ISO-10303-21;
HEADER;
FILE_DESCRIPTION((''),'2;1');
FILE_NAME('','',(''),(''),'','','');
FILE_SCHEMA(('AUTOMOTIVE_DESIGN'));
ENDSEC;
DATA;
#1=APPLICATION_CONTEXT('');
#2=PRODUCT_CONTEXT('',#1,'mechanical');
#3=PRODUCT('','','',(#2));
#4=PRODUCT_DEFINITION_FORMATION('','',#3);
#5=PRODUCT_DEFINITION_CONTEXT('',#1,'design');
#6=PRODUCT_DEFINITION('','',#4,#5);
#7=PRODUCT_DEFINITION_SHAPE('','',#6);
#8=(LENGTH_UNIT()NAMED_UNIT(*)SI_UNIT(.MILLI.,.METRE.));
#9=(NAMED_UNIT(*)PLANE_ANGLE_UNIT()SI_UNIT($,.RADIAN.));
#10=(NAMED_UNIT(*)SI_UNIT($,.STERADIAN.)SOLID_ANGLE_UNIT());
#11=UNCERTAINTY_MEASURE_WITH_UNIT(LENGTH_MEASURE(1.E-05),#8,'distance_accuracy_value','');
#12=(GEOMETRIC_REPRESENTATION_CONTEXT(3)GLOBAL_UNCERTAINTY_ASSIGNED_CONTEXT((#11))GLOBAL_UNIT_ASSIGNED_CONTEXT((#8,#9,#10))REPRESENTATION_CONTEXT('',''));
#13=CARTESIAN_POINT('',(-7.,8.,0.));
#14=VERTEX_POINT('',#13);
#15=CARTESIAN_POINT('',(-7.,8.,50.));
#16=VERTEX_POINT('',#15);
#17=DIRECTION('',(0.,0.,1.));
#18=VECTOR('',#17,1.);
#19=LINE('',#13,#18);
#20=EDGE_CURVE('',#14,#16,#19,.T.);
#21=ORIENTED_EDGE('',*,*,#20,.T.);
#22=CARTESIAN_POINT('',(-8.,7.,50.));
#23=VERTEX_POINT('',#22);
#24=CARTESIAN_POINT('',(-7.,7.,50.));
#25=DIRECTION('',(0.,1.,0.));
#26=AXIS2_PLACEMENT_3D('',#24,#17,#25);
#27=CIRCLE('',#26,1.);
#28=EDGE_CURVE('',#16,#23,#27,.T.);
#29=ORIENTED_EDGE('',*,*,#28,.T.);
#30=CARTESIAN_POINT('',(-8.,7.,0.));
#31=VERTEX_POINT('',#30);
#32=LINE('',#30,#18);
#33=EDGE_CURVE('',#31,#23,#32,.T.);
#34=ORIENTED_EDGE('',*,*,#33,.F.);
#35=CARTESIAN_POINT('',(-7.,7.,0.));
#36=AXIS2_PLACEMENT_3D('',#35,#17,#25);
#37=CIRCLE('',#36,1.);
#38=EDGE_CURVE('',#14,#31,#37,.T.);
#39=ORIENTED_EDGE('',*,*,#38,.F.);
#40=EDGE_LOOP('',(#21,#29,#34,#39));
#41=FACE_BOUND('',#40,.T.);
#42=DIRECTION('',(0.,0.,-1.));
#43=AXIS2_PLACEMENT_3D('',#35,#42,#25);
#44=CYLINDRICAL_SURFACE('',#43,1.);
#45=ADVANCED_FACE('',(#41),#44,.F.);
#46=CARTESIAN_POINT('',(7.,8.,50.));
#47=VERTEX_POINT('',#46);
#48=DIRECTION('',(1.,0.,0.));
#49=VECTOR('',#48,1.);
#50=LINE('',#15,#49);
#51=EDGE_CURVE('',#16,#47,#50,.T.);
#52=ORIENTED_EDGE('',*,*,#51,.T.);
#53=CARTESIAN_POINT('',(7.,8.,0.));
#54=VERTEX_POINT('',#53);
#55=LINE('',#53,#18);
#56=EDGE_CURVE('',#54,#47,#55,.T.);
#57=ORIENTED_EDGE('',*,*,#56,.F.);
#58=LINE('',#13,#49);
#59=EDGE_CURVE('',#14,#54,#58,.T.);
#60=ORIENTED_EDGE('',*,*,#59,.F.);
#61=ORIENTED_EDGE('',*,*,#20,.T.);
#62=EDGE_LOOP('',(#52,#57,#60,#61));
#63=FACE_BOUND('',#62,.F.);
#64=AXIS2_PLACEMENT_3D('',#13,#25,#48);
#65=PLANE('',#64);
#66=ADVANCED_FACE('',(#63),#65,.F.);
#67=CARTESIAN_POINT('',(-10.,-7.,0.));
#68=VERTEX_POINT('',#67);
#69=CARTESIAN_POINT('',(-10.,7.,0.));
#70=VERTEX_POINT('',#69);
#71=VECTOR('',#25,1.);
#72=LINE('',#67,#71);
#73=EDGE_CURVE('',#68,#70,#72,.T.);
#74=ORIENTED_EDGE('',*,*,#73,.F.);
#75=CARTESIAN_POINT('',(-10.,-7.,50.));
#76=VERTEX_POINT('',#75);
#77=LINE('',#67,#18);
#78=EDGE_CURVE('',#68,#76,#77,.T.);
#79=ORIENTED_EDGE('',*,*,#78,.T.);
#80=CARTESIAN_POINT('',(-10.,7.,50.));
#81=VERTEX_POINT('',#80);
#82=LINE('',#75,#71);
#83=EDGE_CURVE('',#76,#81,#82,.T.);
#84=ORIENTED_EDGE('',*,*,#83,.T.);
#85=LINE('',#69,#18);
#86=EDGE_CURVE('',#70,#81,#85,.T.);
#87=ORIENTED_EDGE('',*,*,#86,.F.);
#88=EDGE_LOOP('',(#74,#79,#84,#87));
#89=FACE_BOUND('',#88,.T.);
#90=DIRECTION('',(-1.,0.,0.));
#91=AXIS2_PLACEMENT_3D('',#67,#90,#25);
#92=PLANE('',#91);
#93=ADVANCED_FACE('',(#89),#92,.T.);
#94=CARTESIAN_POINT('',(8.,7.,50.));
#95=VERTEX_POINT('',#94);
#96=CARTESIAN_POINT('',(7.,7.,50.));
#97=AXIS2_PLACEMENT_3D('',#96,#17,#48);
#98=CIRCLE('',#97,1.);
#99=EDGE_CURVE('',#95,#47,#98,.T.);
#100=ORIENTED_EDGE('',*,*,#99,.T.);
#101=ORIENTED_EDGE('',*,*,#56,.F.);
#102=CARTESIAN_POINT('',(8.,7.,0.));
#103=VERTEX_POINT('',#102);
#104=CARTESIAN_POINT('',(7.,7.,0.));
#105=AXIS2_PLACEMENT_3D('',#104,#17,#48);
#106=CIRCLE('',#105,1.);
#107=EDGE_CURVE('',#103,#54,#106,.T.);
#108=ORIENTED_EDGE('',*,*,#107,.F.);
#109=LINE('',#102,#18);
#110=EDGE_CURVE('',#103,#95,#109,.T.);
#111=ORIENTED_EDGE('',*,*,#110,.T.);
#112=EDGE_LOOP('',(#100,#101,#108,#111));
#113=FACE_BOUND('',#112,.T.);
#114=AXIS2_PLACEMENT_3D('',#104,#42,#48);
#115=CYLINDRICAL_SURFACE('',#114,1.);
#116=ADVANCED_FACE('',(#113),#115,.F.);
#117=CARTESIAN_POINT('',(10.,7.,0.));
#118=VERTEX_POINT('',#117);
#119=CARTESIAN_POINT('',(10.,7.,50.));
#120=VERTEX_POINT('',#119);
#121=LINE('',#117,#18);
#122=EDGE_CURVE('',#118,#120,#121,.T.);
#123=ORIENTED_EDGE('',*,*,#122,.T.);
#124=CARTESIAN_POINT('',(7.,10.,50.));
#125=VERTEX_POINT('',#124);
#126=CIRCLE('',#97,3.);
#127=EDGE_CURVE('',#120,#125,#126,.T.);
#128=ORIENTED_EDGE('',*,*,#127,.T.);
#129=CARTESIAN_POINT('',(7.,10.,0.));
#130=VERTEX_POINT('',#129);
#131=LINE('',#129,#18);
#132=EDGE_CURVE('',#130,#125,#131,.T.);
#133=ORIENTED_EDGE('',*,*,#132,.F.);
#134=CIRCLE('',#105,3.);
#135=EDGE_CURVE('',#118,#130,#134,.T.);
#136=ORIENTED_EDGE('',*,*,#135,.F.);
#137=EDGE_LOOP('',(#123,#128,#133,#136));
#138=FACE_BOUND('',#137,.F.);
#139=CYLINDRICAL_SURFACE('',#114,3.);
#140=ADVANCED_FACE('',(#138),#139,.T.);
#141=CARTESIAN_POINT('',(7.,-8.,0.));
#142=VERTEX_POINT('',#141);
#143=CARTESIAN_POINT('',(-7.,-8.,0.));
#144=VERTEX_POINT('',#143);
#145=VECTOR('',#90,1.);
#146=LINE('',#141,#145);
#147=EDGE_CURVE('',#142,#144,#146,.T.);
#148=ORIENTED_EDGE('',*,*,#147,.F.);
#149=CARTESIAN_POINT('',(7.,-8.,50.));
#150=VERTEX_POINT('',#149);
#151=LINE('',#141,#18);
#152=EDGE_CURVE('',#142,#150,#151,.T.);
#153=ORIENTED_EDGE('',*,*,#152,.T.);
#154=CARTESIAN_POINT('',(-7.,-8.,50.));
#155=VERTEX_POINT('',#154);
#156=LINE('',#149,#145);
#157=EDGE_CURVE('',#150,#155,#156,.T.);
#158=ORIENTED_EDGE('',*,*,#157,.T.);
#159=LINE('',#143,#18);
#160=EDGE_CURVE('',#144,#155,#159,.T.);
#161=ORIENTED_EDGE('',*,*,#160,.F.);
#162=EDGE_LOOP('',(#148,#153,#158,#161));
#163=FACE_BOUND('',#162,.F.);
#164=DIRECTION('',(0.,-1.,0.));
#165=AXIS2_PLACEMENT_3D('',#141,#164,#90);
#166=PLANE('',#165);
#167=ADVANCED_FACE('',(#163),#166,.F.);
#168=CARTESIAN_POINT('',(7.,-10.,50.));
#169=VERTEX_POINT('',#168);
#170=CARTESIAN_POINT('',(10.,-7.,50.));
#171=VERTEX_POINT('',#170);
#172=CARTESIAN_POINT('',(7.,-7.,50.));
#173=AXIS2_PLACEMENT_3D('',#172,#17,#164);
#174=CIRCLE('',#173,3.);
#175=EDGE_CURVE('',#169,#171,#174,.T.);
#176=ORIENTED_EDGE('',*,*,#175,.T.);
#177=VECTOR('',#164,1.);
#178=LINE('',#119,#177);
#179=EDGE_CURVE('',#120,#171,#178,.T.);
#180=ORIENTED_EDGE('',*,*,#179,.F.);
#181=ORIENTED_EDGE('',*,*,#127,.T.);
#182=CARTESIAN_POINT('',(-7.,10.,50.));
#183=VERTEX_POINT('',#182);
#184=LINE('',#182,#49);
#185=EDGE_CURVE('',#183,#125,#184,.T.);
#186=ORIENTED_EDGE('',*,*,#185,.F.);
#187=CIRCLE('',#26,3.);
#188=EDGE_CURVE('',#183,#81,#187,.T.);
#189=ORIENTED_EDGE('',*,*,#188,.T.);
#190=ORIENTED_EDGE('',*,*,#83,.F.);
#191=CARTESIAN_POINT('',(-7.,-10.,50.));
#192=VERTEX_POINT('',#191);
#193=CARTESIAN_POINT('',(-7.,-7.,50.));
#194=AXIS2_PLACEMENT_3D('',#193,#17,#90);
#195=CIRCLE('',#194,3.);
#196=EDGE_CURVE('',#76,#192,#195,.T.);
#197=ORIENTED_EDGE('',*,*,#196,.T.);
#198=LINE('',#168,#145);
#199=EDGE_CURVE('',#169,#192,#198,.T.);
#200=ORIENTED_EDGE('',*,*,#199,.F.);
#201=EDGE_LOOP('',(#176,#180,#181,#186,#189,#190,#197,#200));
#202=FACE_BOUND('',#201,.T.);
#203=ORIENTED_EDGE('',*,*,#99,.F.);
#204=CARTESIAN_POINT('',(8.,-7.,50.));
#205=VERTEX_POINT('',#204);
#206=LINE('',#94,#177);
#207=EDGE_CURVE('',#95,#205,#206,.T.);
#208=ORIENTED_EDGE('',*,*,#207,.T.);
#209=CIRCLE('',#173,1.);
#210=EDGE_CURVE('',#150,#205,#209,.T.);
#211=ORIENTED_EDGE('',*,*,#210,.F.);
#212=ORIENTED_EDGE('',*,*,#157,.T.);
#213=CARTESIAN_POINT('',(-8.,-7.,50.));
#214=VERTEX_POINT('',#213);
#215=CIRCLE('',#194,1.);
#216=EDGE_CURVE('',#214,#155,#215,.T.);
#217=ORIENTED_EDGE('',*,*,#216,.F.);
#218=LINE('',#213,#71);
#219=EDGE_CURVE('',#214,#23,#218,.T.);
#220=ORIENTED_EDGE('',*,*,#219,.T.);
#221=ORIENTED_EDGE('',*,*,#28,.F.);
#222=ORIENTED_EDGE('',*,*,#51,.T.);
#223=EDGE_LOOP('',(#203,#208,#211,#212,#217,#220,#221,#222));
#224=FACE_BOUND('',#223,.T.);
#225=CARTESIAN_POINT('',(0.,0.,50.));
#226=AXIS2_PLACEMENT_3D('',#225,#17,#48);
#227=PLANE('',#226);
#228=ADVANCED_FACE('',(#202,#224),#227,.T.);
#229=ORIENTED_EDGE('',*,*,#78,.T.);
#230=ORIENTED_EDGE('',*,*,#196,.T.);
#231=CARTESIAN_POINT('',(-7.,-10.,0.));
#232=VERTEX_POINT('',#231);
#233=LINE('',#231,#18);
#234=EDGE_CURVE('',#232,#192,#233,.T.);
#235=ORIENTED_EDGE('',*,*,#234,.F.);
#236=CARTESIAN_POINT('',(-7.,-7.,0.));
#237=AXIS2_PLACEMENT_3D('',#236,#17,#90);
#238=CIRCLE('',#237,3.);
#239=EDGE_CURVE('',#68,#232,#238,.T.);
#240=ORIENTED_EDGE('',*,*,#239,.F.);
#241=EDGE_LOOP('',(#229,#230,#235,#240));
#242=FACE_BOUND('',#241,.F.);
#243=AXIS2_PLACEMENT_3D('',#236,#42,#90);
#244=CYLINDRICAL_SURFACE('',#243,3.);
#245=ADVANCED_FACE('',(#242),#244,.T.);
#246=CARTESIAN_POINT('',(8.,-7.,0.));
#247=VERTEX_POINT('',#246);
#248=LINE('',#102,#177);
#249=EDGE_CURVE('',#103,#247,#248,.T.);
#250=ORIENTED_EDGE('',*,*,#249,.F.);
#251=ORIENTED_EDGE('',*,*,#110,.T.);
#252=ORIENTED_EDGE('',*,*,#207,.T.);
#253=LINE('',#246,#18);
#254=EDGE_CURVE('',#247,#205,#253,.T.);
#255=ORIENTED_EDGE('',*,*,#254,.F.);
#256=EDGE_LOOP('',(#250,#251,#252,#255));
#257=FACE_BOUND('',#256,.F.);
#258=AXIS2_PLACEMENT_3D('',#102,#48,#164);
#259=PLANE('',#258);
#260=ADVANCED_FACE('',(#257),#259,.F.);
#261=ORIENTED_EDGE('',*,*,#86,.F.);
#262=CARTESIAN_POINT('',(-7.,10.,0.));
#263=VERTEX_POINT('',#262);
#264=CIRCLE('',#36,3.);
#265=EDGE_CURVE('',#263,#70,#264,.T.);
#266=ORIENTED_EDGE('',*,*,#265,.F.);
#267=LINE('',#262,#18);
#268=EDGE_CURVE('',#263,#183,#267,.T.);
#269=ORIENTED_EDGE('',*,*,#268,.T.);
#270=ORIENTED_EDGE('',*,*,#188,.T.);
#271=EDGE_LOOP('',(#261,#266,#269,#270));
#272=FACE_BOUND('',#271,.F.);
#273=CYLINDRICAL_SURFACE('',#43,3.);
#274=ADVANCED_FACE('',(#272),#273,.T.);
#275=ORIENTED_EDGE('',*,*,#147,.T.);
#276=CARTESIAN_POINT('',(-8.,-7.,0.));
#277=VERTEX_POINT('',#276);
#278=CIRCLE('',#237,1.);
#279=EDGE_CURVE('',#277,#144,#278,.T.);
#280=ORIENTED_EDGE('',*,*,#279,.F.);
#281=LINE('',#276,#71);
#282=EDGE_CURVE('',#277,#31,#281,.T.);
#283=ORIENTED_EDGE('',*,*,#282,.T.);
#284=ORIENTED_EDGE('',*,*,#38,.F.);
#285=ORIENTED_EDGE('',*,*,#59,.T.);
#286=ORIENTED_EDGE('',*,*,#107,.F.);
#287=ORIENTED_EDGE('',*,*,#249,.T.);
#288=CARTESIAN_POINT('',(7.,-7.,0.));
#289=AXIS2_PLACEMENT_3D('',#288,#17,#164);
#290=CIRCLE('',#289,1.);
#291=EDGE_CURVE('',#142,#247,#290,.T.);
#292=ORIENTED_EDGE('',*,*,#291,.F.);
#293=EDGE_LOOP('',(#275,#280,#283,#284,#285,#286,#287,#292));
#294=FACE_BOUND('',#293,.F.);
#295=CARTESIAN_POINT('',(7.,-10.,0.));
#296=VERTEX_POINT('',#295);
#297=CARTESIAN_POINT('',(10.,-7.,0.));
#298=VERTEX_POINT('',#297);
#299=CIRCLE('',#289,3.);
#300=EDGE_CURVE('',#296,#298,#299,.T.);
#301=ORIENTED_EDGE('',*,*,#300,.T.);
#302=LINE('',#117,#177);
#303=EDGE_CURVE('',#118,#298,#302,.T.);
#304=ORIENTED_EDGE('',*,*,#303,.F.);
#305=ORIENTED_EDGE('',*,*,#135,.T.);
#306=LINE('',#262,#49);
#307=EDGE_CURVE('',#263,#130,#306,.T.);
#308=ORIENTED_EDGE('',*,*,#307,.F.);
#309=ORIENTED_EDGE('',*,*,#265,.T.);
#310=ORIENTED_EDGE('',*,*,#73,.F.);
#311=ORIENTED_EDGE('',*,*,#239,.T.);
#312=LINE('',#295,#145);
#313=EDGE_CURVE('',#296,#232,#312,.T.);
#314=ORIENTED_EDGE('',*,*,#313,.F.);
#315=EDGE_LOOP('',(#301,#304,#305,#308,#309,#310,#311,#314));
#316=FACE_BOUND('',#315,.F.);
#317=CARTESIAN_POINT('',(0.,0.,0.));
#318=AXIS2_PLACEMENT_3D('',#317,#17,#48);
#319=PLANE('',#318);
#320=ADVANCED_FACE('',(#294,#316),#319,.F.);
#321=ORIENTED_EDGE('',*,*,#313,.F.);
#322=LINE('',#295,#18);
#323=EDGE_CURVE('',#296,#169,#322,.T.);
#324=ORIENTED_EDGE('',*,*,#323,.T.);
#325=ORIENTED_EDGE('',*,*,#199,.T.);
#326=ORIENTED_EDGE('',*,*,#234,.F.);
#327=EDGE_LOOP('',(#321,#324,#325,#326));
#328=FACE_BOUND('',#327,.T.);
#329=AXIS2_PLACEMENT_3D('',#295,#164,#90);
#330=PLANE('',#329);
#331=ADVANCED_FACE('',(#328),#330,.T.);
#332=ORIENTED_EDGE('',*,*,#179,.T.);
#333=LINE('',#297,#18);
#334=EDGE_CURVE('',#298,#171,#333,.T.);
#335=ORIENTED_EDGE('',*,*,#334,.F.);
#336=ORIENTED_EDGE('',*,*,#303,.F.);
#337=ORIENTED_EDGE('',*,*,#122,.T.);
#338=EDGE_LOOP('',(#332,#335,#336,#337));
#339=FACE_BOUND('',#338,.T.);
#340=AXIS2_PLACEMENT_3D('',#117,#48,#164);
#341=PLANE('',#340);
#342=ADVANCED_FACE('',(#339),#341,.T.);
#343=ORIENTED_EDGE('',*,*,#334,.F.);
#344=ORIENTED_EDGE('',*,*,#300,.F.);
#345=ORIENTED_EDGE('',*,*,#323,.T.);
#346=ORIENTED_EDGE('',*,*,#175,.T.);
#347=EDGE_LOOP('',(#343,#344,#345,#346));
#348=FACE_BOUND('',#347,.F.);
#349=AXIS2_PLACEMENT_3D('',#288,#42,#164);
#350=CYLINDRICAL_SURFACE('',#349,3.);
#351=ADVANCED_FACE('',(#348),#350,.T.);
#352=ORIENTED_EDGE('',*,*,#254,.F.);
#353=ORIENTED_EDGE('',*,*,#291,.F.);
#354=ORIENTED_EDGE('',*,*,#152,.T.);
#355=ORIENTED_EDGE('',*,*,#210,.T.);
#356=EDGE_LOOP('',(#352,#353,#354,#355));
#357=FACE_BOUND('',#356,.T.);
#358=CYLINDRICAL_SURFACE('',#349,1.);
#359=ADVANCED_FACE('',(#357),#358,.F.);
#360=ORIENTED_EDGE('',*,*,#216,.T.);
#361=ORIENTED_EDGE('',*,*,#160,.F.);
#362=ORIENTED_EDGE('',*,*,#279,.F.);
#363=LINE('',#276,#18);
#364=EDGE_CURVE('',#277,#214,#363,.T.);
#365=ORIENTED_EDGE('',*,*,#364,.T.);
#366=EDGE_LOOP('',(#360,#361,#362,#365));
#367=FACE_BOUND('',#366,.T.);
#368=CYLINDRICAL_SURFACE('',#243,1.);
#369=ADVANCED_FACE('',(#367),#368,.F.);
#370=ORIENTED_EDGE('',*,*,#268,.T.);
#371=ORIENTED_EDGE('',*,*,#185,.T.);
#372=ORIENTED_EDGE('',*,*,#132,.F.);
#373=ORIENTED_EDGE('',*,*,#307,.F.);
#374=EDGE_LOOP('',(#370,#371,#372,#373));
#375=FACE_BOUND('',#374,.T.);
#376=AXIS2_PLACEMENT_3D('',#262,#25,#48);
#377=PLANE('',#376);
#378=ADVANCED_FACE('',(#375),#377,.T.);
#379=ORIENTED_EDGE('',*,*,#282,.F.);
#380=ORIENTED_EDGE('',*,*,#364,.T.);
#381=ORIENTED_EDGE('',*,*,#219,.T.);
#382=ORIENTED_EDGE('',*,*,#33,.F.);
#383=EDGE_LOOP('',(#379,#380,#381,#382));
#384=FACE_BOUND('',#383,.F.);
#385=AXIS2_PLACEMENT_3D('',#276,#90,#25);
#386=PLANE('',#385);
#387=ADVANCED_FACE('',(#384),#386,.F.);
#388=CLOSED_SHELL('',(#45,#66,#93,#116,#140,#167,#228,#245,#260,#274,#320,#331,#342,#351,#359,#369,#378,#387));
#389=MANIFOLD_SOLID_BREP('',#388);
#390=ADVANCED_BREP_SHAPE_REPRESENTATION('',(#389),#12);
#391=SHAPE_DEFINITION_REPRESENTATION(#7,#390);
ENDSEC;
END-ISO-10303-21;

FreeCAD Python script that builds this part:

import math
import FreeCAD as App
import Part
import Sketcher
from FreeCAD import Vector

doc = App.newDocument("Part")
body = doc.addObject("PartDesign::Body", "Body")

sketch1 = body.newObject("Sketcher::SketchObject", "Sketch")
sketch1.AttachmentSupport = (doc.getObject("XY_Plane"), [""])
sketch1.MapMode = "FlatFace"
sketch1.addGeometry(Part.LineSegment(Vector(-10, 7, 0), Vector(-10, -7, 0)), False)
sketch1.addGeometry(Part.ArcOfCircle(Part.Circle(Vector(-7, -7, 0), Vector(0, 0, 1), 3), math.radians(180), math.radians(270)), False)
sketch1.addGeometry(Part.LineSegment(Vector(-7, -10, 0), Vector(7, -10, 0)), False)
sketch1.addGeometry(Part.ArcOfCircle(Part.Circle(Vector(7, -7, 0), Vector(0, 0, 1), 3), math.radians(-90), math.radians(0)), False)
sketch1.addGeometry(Part.LineSegment(Vector(10, -7, 0), Vector(10, 7, 0)), False)
sketch1.addGeometry(Part.ArcOfCircle(Part.Circle(Vector(7, 7, 0), Vector(0, 0, 1), 3), math.radians(0), math.radians(90)), False)
sketch1.addGeometry(Part.LineSegment(Vector(7, 10, 0), Vector(-7, 10, 0)), False)
sketch1.addGeometry(Part.ArcOfCircle(Part.Circle(Vector(-7, 7, 0), Vector(0, 0, 1), 3), math.radians(90), math.radians(180)), False)
sketch1.addGeometry(Part.ArcOfCircle(Part.Circle(Vector(-7, 7, 0), Vector(0, 0, 1), 1), math.radians(90), math.radians(180)), False)
sketch1.addGeometry(Part.LineSegment(Vector(-7, 8, 0), Vector(7, 8, 0)), False)
sketch1.addGeometry(Part.ArcOfCircle(Part.Circle(Vector(7, 7, 0), Vector(0, 0, 1), 1), math.radians(0), math.radians(90)), False)
sketch1.addGeometry(Part.LineSegment(Vector(8, 7, 0), Vector(8, -7, 0)), False)
sketch1.addGeometry(Part.ArcOfCircle(Part.Circle(Vector(7, -7, 0), Vector(0, 0, 1), 1), math.radians(-90), math.radians(0)), False)
sketch1.addGeometry(Part.LineSegment(Vector(7, -8, 0), Vector(-7, -8, 0)), False)
sketch1.addGeometry(Part.ArcOfCircle(Part.Circle(Vector(-7, -7, 0), Vector(0, 0, 1), 1), math.radians(180), math.radians(270)), False)
sketch1.addGeometry(Part.LineSegment(Vector(-8, -7, 0), Vector(-8, 7, 0)), False)
sketch1.addConstraint(Sketcher.Constraint("Tangent", 0, 2, 1, 1))
sketch1.addConstraint(Sketcher.Constraint("Tangent", 1, 2, 2, 1))
sketch1.addConstraint(Sketcher.Constraint("Tangent", 2, 2, 3, 1))
sketch1.addConstraint(Sketcher.Constraint("Tangent", 3, 2, 4, 1))
sketch1.addConstraint(Sketcher.Constraint("Tangent", 4, 2, 5, 1))
sketch1.addConstraint(Sketcher.Constraint("Tangent", 5, 2, 6, 1))
sketch1.addConstraint(Sketcher.Constraint("Tangent", 6, 2, 7, 1))
sketch1.addConstraint(Sketcher.Constraint("Tangent", 7, 2, 0, 1))
sketch1.addConstraint(Sketcher.Constraint("Tangent", 8, 1, 9, 1))
sketch1.addConstraint(Sketcher.Constraint("Tangent", 9, 2, 10, 2))
sketch1.addConstraint(Sketcher.Constraint("Tangent", 10, 1, 11, 1))
sketch1.addConstraint(Sketcher.Constraint("Tangent", 11, 2, 12, 2))
sketch1.addConstraint(Sketcher.Constraint("Tangent", 12, 1, 13, 1))
sketch1.addConstraint(Sketcher.Constraint("Tangent", 13, 2, 14, 2))
sketch1.addConstraint(Sketcher.Constraint("Tangent", 14, 1, 15, 1))
sketch1.addConstraint(Sketcher.Constraint("Tangent", 15, 2, 8, 2))
sketch1.addConstraint(Sketcher.Constraint("Vertical", 0))
sketch1.addConstraint(Sketcher.Constraint("Horizontal", 2))
sketch1.addConstraint(Sketcher.Constraint("Vertical", 4))
sketch1.addConstraint(Sketcher.Constraint("Horizontal", 6))
sketch1.addConstraint(Sketcher.Constraint("Horizontal", 9))
sketch1.addConstraint(Sketcher.Constraint("Vertical", 11))
sketch1.addConstraint(Sketcher.Constraint("Horizontal", 13))
sketch1.addConstraint(Sketcher.Constraint("Vertical", 15))
sketch1.addConstraint(Sketcher.Constraint("Coincident", 8, 3, 7, 3))
sketch1.addConstraint(Sketcher.Constraint("Coincident", 10, 3, 5, 3))
sketch1.addConstraint(Sketcher.Constraint("Coincident", 12, 3, 3, 3))
sketch1.addConstraint(Sketcher.Constraint("Equal", 1, 3))
sketch1.addConstraint(Sketcher.Constraint("Equal", 3, 5))
sketch1.addConstraint(Sketcher.Constraint("Equal", 5, 7))
sketch1.addConstraint(Sketcher.Constraint("Equal", 12, 14))
sketch1.addConstraint(Sketcher.Constraint("Symmetric", 1, 3, 5, 3, -1, 1))
sketch1.addConstraint(Sketcher.Constraint("Equal", 13, 0))
sketch1.addConstraint(Sketcher.Constraint("Radius", 1, 3.0))
sketch1.addConstraint(Sketcher.Constraint("Radius", 8, 1.0))
sketch1.addConstraint(Sketcher.Constraint("DistanceX", 0, 2, -1, 1, 10.0))
pad1 = body.newObject("PartDesign::Pad", "Pad")
pad1.Profile = sketch1
pad1.Length = 50

doc.recompute()
